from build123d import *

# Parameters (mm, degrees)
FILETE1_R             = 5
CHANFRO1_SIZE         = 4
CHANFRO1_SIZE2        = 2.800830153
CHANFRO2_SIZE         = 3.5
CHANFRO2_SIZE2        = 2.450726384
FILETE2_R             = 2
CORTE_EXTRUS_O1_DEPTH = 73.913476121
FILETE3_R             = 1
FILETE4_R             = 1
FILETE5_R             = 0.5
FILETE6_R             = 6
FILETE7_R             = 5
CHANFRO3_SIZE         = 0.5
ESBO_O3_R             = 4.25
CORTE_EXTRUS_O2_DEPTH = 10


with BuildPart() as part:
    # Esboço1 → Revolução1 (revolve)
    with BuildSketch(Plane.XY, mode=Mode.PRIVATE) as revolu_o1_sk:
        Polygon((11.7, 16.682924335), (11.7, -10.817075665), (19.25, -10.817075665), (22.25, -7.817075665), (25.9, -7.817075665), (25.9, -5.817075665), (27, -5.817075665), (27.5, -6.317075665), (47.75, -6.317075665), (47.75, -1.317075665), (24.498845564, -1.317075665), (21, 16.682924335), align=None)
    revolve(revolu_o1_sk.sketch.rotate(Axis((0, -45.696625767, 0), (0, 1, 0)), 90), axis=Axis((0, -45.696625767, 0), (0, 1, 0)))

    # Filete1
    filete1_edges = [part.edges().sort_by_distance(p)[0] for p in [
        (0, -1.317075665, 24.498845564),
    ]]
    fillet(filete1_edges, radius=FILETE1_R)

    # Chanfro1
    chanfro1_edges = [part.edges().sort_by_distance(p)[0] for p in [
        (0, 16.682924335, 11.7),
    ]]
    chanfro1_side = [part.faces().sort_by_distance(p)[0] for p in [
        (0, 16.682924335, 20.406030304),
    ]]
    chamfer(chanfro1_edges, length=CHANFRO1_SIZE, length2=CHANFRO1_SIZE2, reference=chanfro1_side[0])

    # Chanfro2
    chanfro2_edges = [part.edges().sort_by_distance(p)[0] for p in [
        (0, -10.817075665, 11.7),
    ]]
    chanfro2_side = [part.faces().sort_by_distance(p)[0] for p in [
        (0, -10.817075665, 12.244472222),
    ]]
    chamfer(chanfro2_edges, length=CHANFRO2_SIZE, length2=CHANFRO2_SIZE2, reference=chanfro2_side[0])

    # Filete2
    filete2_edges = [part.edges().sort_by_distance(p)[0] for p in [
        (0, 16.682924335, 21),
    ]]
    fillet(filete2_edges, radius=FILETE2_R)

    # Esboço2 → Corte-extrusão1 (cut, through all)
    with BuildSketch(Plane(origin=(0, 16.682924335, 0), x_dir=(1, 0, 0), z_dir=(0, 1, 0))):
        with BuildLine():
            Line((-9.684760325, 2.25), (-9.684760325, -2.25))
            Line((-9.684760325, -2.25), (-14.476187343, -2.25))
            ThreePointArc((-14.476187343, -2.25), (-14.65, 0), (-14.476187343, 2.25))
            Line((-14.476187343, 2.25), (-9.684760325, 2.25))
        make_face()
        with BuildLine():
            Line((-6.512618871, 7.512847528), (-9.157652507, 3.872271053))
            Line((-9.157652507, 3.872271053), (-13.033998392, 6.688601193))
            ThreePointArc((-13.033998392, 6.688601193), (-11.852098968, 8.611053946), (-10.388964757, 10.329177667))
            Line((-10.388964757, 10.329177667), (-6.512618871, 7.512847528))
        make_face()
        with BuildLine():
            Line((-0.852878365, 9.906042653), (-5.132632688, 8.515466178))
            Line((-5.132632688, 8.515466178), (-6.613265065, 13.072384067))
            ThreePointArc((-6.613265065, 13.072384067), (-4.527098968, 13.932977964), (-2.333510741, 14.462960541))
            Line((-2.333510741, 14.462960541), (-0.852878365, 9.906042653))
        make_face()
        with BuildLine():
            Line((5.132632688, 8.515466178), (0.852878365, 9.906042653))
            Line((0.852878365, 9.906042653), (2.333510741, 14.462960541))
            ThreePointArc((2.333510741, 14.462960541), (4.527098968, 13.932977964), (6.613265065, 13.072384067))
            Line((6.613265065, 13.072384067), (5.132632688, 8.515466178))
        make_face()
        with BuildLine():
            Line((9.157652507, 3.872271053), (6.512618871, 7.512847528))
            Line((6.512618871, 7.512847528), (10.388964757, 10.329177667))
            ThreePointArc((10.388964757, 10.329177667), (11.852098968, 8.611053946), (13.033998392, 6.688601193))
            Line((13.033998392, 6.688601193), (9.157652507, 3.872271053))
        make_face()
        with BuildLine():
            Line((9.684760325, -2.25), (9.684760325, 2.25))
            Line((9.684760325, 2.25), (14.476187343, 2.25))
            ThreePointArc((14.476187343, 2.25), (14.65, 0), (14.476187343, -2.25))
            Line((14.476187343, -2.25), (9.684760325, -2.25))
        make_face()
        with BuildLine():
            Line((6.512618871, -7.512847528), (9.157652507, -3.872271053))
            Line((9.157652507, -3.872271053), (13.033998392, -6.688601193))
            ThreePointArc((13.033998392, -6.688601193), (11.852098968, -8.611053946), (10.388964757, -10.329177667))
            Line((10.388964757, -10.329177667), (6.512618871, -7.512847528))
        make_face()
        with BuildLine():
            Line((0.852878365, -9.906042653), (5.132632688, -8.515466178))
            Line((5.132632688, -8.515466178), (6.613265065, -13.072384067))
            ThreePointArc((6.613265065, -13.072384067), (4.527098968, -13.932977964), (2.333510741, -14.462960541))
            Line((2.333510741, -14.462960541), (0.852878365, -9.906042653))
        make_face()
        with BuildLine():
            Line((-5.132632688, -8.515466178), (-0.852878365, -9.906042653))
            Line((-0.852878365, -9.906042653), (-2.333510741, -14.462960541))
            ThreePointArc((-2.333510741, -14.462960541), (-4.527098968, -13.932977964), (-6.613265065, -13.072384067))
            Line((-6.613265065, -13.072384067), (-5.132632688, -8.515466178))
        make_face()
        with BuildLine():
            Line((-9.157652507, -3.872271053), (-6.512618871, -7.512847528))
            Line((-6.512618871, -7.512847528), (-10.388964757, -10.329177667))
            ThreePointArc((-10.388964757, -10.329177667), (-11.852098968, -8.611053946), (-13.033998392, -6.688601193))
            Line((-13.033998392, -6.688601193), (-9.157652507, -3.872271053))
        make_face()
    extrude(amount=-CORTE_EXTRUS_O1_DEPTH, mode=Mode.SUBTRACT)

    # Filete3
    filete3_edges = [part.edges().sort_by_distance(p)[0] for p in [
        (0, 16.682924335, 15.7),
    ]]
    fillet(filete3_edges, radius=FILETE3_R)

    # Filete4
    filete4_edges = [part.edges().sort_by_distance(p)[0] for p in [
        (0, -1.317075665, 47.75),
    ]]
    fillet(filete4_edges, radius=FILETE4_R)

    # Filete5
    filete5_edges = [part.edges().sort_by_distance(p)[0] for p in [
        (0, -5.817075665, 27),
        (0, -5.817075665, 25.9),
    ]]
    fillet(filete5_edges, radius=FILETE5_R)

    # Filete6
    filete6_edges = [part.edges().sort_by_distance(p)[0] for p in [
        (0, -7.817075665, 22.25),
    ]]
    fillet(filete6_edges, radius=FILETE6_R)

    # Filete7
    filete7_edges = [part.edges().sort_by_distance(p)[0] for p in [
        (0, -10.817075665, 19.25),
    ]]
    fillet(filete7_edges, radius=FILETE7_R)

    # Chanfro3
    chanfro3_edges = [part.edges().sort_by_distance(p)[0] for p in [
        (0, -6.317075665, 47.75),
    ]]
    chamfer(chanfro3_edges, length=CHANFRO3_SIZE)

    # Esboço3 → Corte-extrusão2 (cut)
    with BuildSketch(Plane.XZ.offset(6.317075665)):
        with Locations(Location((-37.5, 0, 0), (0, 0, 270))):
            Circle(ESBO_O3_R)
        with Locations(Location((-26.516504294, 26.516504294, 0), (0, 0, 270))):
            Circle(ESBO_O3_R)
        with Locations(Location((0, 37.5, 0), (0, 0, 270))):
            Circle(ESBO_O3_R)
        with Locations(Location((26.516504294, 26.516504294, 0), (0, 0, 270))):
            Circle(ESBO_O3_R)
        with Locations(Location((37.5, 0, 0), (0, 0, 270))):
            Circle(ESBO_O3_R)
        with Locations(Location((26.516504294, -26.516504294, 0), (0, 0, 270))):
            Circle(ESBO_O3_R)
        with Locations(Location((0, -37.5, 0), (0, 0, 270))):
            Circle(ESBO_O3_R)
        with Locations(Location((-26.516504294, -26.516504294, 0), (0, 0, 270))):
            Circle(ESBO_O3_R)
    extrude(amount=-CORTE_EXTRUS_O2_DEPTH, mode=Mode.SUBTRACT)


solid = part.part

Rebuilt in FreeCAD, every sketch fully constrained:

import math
import FreeCAD as App
import Part
import Sketcher

V = App.Vector
Q = App.Units.Quantity


def edges_at(feature, points):
    """Names of the edges that pass closest to the given points."""
    edges = feature.Shape.Edges
    near = lambda p: min(range(len(edges)), key=lambda i: edges[i].distToShape(Part.Vertex(*p))[0])
    return sorted({f"Edge{near(p) + 1}" for p in points})

doc = App.newDocument("Part")
params = doc.addObject("Spreadsheet::Sheet", "Params")
for row, (alias, value) in enumerate([
    ("sketch1_height", "2 mm"),
    ("sketch1_height2", "5 mm"),
    ("sketch1_width", "1.1 mm"),
    ("sketch1_width2", "9.3 mm"),
    ("sketch1_height3", "27.5 mm"),
    ("revolution_angle", "360 deg"),
    ("fillet_radius", "5 mm"),
    ("chamfer_size", "4 mm"),
    ("chamfer_size2", "2.80083 mm"),
    ("chamfer2_size", "3.5 mm"),
    ("chamfer2_size2", "2.450726 mm"),
    ("fillet2_radius", "2 mm"),
    ("sketch2_radius", "14.65 mm"),
    ("sketch2_height", "4.5 mm"),
    ("sketch2_length", "4.5 mm"),
    ("fillet3_radius", "1 mm"),
    ("fillet4_radius", "1 mm"),
    ("fillet5_radius", "0.5 mm"),
    ("fillet6_radius", "6 mm"),
    ("fillet7_radius", "5 mm"),
    ("chamfer3_size", "0.5 mm"),
    ("sketch3_diameter", "8.5 mm"),
    ("pocket2_length", "10 mm"),
], start=1):
    params.set(f"A{row}", alias)
    params.set(f"B{row}", "=" + value)
    params.setAlias(f"B{row}", alias)

body = doc.addObject("PartDesign::Body", "Body")

sketch1 = body.newObject("Sketcher::SketchObject", "Sketch")
sketch1.AttachmentSupport = (doc.getObject("XY_Plane"), [""])
sketch1.MapMode = "FlatFace"
sketch1.addGeometry(Part.LineSegment(V(11.7, 16.7, 0), V(11.7, -10.8, 0)), False)
sketch1.addGeometry(Part.LineSegment(V(11.7, -10.8, 0), V(19.2, -10.8, 0)), False)
sketch1.addGeometry(Part.LineSegment(V(19.2, -10.8, 0), V(22.2, -7.8, 0)), False)
sketch1.addGeometry(Part.LineSegment(V(22.2, -7.8, 0), V(25.9, -7.8, 0)), False)
sketch1.addGeometry(Part.LineSegment(V(25.9, -7.8, 0), V(25.9, -5.8, 0)), False)
sketch1.addGeometry(Part.LineSegment(V(25.9, -5.8, 0), V(27, -5.8, 0)), False)
sketch1.addGeometry(Part.LineSegment(V(27, -5.8, 0), V(27.5, -6.3, 0)), False)
sketch1.addGeometry(Part.LineSegment(V(27.5, -6.3, 0), V(47.8, -6.3, 0)), False)
sketch1.addGeometry(Part.LineSegment(V(47.8, -6.3, 0), V(47.8, -1.3, 0)), False)
sketch1.addGeometry(Part.LineSegment(V(47.8, -1.3, 0), V(24.5, -1.3, 0)), False)
sketch1.addGeometry(Part.LineSegment(V(24.5, -1.3, 0), V(21, 16.7, 0)), False)
sketch1.addGeometry(Part.LineSegment(V(21, 16.7, 0), V(11.7, 16.7, 0)), False)
sketch1.addConstraint(Sketcher.Constraint("Coincident", 0, 2, 1, 1))
sketch1.addConstraint(Sketcher.Constraint("Coincident", 1, 2, 2, 1))
sketch1.addConstraint(Sketcher.Constraint("Coincident", 2, 2, 3, 1))
sketch1.addConstraint(Sketcher.Constraint("Coincident", 3, 2, 4, 1))
sketch1.addConstraint(Sketcher.Constraint("Coincident", 4, 2, 5, 1))
sketch1.addConstraint(Sketcher.Constraint("Coincident", 5, 2, 6, 1))
sketch1.addConstraint(Sketcher.Constraint("Coincident", 6, 2, 7, 1))
sketch1.addConstraint(Sketcher.Constraint("Coincident", 7, 2, 8, 1))
sketch1.addConstraint(Sketcher.Constraint("Coincident", 8, 2, 9, 1))
sketch1.addConstraint(Sketcher.Constraint("Coincident", 9, 2, 10, 1))
sketch1.addConstraint(Sketcher.Constraint("Coincident", 10, 2, 11, 1))
sketch1.addConstraint(Sketcher.Constraint("Coincident", 11, 2, 0, 1))
sketch1.addConstraint(Sketcher.Constraint("Vertical", 0))
sketch1.addConstraint(Sketcher.Constraint("Horizontal", 1))
sketch1.addConstraint(Sketcher.Constraint("Horizontal", 3))
sketch1.addConstraint(Sketcher.Constraint("Vertical", 4))
sketch1.addConstraint(Sketcher.Constraint("Horizontal", 5))
sketch1.addConstraint(Sketcher.Constraint("Horizontal", 7))
sketch1.addConstraint(Sketcher.Constraint("Vertical", 8))
sketch1.addConstraint(Sketcher.Constraint("Horizontal", 9))
sketch1.addConstraint(Sketcher.Constraint("Horizontal", 11))
sketch1.addConstraint(Sketcher.Constraint("Perpendicular", 2, 6))
sketch1.addConstraint(Sketcher.Constraint("DistanceY", 4, 1, 4, 2, Q("2 mm")))
sketch1.addConstraint(Sketcher.Constraint("DistanceY", 8, 1, 8, 2, Q("5 mm")))
sketch1.addConstraint(Sketcher.Constraint("Angle", 2, Q("45 deg")))
sketch1.addConstraint(Sketcher.Constraint("Angle", 10, Q("101 deg")))
sketch1.addConstraint(Sketcher.Constraint("DistanceX", 5, 1, 5, 2, Q("1.1 mm")))
sketch1.addConstraint(Sketcher.Constraint("DistanceX", 11, 2, 11, 1, Q("9.3 mm")))
sketch1.addConstraint(Sketcher.Constraint("DistanceY", 0, 2, 0, 1, Q("27.5 mm")))
sketch1.addConstraint(Sketcher.Constraint("DistanceX", -1, 1, 5, 2, Q("27 mm")))
sketch1.addConstraint(Sketcher.Constraint("DistanceX", -1, 1, 10, 2, Q("21 mm")))
sketch1.addConstraint(Sketcher.Constraint("DistanceX", 1, 2, 2, 2, Q("3 mm")))
sketch1.addConstraint(Sketcher.Constraint("DistanceY", 9, 2, 10, 2, Q("18 mm")))
sketch1.addConstraint(Sketcher.Constraint("DistanceX", 1, 1, 1, 2, Q("7.55 mm")))
sketch1.addConstraint(Sketcher.Constraint("DistanceX", 7, 1, 7, 2, Q("20.25 mm")))
sketch1.addConstraint(Sketcher.Constraint("DistanceY", 0, 2, -1, 1, Q("10.817076 mm")))
sketch1.setExpression("Constraints[22]", "Params.sketch1_height")
sketch1.setExpression("Constraints[23]", "Params.sketch1_height2")
sketch1.setExpression("Constraints[26]", "Params.sketch1_width")
sketch1.setExpression("Constraints[27]", "Params.sketch1_width2")
sketch1.setExpression("Constraints[28]", "Params.sketch1_height3")
revolution = body.newObject("PartDesign::Revolution", "Revolution")
revolution.Profile = sketch1
revolution.ReferenceAxis = (sketch1, ["V_Axis"])
revolution.setExpression("Angle", "Params.revolution_angle")
doc.recompute()

fillet = body.newObject("PartDesign::Fillet", "Fillet")
fillet.Base = (revolution, edges_at(revolution, [(0, -1.317, 24.499)]))
fillet.setExpression("Radius", "Params.fillet_radius")
doc.recompute()

chamfer = body.newObject("PartDesign::Chamfer", "Chamfer")
chamfer.Base = (fillet, edges_at(fillet, [(0, 16.683, 11.7)]))
chamfer.ChamferType = "Two distances"
chamfer.setExpression("Size", "Params.chamfer_size")
chamfer.setExpression("Size2", "Params.chamfer_size2")
doc.recompute()

chamfer2 = body.newObject("PartDesign::Chamfer", "Chamfer001")
chamfer2.Base = (chamfer, edges_at(chamfer, [(0, -10.817, 11.7)]))
chamfer2.ChamferType = "Two distances"
chamfer2.setExpression("Size", "Params.chamfer2_size")
chamfer2.setExpression("Size2", "Params.chamfer2_size2")
chamfer2.FlipDirection = True
doc.recompute()

fillet2 = body.newObject("PartDesign::Fillet", "Fillet001")
fillet2.Base = (chamfer2, edges_at(chamfer2, [(0, 16.683, 21)]))
fillet2.setExpression("Radius", "Params.fillet2_radius")

sketch2 = body.newObject("Sketcher::SketchObject", "Sketch001")
sketch2.AttachmentSupport = (doc.getObject("XZ_Plane"), [""])
sketch2.MapMode = "FlatFace"
sketch2.AttachmentOffset = App.Placement(V(0, 0, -16.682924), App.Rotation())
sketch2.addGeometry(Part.LineSegment(V(-9.7, 2.2, 0), V(-9.7, -2.2, 0)), False)
sketch2.addGeometry(Part.LineSegment(V(-9.7, -2.2, 0), V(-14.5, -2.2, 0)), False)
sketch2.addGeometry(Part.ArcOfCircle(Part.Circle(V(0, 0, 0), V(0, 0, 1), 14.6), math.radians(171.17), math.radians(188.83)), False)
sketch2.addGeometry(Part.LineSegment(V(-14.5, 2.2, 0), V(-9.7, 2.2, 0)), False)
sketch2.addGeometry(Part.LineSegment(V(-9.2, -3.9, 0), V(-6.5, -7.5, 0)), False)
sketch2.addGeometry(Part.LineSegment(V(-6.5, -7.5, 0), V(-10.4, -10.3, 0)), False)
sketch2.addGeometry(Part.ArcOfCircle(Part.Circle(V(0, 0, 0), V(0, 0, 1), 14.6), math.radians(-152.83), math.radians(-135.17)), False)
sketch2.addGeometry(Part.LineSegment(V(-13, -6.7, 0), V(-9.2, -3.9, 0)), False)
sketch2.addGeometry(Part.LineSegment(V(-5.1, -8.5, 0), V(-0.9, -9.9, 0)), False)
sketch2.addGeometry(Part.LineSegment(V(-0.9, -9.9, 0), V(-2.3, -14.5, 0)), False)
sketch2.addGeometry(Part.ArcOfCircle(Part.Circle(V(0, 0, 0), V(0, 0, 1), 14.6), math.radians(-116.83), math.radians(-99.17)), False)
sketch2.addGeometry(Part.LineSegment(V(-6.6, -13.1, 0), V(-5.1, -8.5, 0)), False)
sketch2.addGeometry(Part.LineSegment(V(0.9, -9.9, 0), V(5.1, -8.5, 0)), False)
sketch2.addGeometry(Part.LineSegment(V(5.1, -8.5, 0), V(6.6, -13.1, 0)), False)
sketch2.addGeometry(Part.ArcOfCircle(Part.Circle(V(0, 0, 0), V(0, 0, 1), 14.6), math.radians(-80.83), math.radians(-63.17)), False)
sketch2.addGeometry(Part.LineSegment(V(2.3, -14.5, 0), V(0.9, -9.9, 0)), False)
sketch2.addGeometry(Part.LineSegment(V(6.5, -7.5, 0), V(9.2, -3.9, 0)), False)
sketch2.addGeometry(Part.LineSegment(V(9.2, -3.9, 0), V(13, -6.7, 0)), False)
sketch2.addGeometry(Part.ArcOfCircle(Part.Circle(V(0, 0, 0), V(0, 0, 1), 14.6), math.radians(-44.83), math.radians(-27.17)), False)
sketch2.addGeometry(Part.LineSegment(V(10.4, -10.3, 0), V(6.5, -7.5, 0)), False)
sketch2.addGeometry(Part.LineSegment(V(9.7, -2.2, 0), V(9.7, 2.2, 0)), False)
sketch2.addGeometry(Part.LineSegment(V(9.7, 2.2, 0), V(14.5, 2.2, 0)), False)
sketch2.addGeometry(Part.ArcOfCircle(Part.Circle(V(0, 0, 0), V(0, 0, 1), 14.6), math.radians(-8.83), math.radians(8.83)), False)
sketch2.addGeometry(Part.LineSegment(V(14.5, -2.2, 0), V(9.7, -2.2, 0)), False)
sketch2.addGeometry(Part.LineSegment(V(9.2, 3.9, 0), V(6.5, 7.5, 0)), False)
sketch2.addGeometry(Part.LineSegment(V(6.5, 7.5, 0), V(10.4, 10.3, 0)), False)
sketch2.addGeometry(Part.ArcOfCircle(Part.Circle(V(0, 0, 0), V(0, 0, 1), 14.6), math.radians(27.17), math.radians(44.83)), False)
sketch2.addGeometry(Part.LineSegment(V(13, 6.7, 0), V(9.2, 3.9, 0)), False)
sketch2.addGeometry(Part.LineSegment(V(5.1, 8.5, 0), V(0.9, 9.9, 0)), False)
sketch2.addGeometry(Part.LineSegment(V(0.9, 9.9, 0), V(2.3, 14.5, 0)), False)
sketch2.addGeometry(Part.ArcOfCircle(Part.Circle(V(0, 0, 0), V(0, 0, 1), 14.6), math.radians(63.17), math.radians(80.83)), False)
sketch2.addGeometry(Part.LineSegment(V(6.6, 13.1, 0), V(5.1, 8.5, 0)), False)
sketch2.addGeometry(Part.LineSegment(V(-0.9, 9.9, 0), V(-5.1, 8.5, 0)), False)
sketch2.addGeometry(Part.LineSegment(V(-5.1, 8.5, 0), V(-6.6, 13.1, 0)), False)
sketch2.addGeometry(Part.ArcOfCircle(Part.Circle(V(0, 0, 0), V(0, 0, 1), 14.6), math.radians(99.17), math.radians(116.83)), False)
sketch2.addGeometry(Part.LineSegment(V(-2.3, 14.5, 0), V(-0.9, 9.9, 0)), False)
sketch2.addGeometry(Part.LineSegment(V(-6.5, 7.5, 0), V(-9.2, 3.9, 0)), False)
sketch2.addGeometry(Part.LineSegment(V(-9.2, 3.9, 0), V(-13, 6.7, 0)), False)
sketch2.addGeometry(Part.ArcOfCircle(Part.Circle(V(0, 0, 0), V(0, 0, 1), 14.6), math.radians(135.17), math.radians(152.83)), False)
sketch2.addGeometry(Part.LineSegment(V(-10.4, 10.3, 0), V(-6.5, 7.5, 0)), False)
sketch2.addConstraint(Sketcher.Constraint("Coincident", 0, 2, 1, 1))
sketch2.addConstraint(Sketcher.Constraint("Coincident", 1, 2, 2, 2))
sketch2.addConstraint(Sketcher.Constraint("Coincident", 2, 1, 3, 1))
sketch2.addConstraint(Sketcher.Constraint("Coincident", 3, 2, 0, 1))
sketch2.addConstraint(Sketcher.Constraint("Coincident", 4, 2, 5, 1))
sketch2.addConstraint(Sketcher.Constraint("Coincident", 5, 2, 6, 2))
sketch2.addConstraint(Sketcher.Constraint("Coincident", 6, 1, 7, 1))
sketch2.addConstraint(Sketcher.Constraint("Coincident", 7, 2, 4, 1))
sketch2.addConstraint(Sketcher.Constraint("Coincident", 8, 2, 9, 1))
sketch2.addConstraint(Sketcher.Constraint("Coincident", 9, 2, 10, 2))
sketch2.addConstraint(Sketcher.Constraint("Coincident", 10, 1, 11, 1))
sketch2.addConstraint(Sketcher.Constraint("Coincident", 11, 2, 8, 1))
sketch2.addConstraint(Sketcher.Constraint("Coincident", 12, 2, 13, 1))
sketch2.addConstraint(Sketcher.Constraint("Coincident", 13, 2, 14, 2))
sketch2.addConstraint(Sketcher.Constraint("Coincident", 14, 1, 15, 1))
sketch2.addConstraint(Sketcher.Constraint("Coincident", 15, 2, 12, 1))
sketch2.addConstraint(Sketcher.Constraint("Coincident", 16, 2, 17, 1))
sketch2.addConstraint(Sketcher.Constraint("Coincident", 17, 2, 18, 2))
sketch2.addConstraint(Sketcher.Constraint("Coincident", 18, 1, 19, 1))
sketch2.addConstraint(Sketcher.Constraint("Coincident", 19, 2, 16, 1))
sketch2.addConstraint(Sketcher.Constraint("Coincident", 20, 2, 21, 1))
sketch2.addConstraint(Sketcher.Constraint("Coincident", 21, 2, 22, 2))
sketch2.addConstraint(Sketcher.Constraint("Coincident", 22, 1, 23, 1))
sketch2.addConstraint(Sketcher.Constraint("Coincident", 23, 2, 20, 1))
sketch2.addConstraint(Sketcher.Constraint("Coincident", 24, 2, 25, 1))
sketch2.addConstraint(Sketcher.Constraint("Coincident", 25, 2, 26, 2))
sketch2.addConstraint(Sketcher.Constraint("Coincident", 26, 1, 27, 1))
sketch2.addConstraint(Sketcher.Constraint("Coincident", 27, 2, 24, 1))
sketch2.addConstraint(Sketcher.Constraint("Coincident", 28, 2, 29, 1))
sketch2.addConstraint(Sketcher.Constraint("Coincident", 29, 2, 30, 2))
sketch2.addConstraint(Sketcher.Constraint("Coincident", 30, 1, 31, 1))
sketch2.addConstraint(Sketcher.Constraint("Coincident", 31, 2, 28, 1))
sketch2.addConstraint(Sketcher.Constraint("Coincident", 32, 2, 33, 1))
sketch2.addConstraint(Sketcher.Constraint("Coincident", 33, 2, 34, 2))
sketch2.addConstraint(Sketcher.Constraint("Coincident", 34, 1, 35, 1))
sketch2.addConstraint(Sketcher.Constraint("Coincident", 35, 2, 32, 1))
sketch2.addConstraint(Sketcher.Constraint("Coincident", 36, 2, 37, 1))
sketch2.addConstraint(Sketcher.Constraint("Coincident", 37, 2, 38, 2))
sketch2.addConstraint(Sketcher.Constraint("Coincident", 38, 1, 39, 1))
sketch2.addConstraint(Sketcher.Constraint("Coincident", 39, 2, 36, 1))
sketch2.addConstraint(Sketcher.Constraint("Vertical", 0))
sketch2.addConstraint(Sketcher.Constraint("Horizontal", 1))
sketch2.addConstraint(Sketcher.Constraint("Horizontal", 3))
sketch2.addConstraint(Sketcher.Constraint("Vertical", 20))
sketch2.addConstraint(Sketcher.Constraint("Horizontal", 21))
sketch2.addConstraint(Sketcher.Constraint("Horizontal", 23))
sketch2.addConstraint(Sketcher.Constraint("Coincident", 2, 3, -1, 1))
sketch2.addConstraint(Sketcher.Constraint("Coincident", 6, 3, -1, 1))
sketch2.addConstraint(Sketcher.Constraint("Coincident", 10, 3, -1, 1))
sketch2.addConstraint(Sketcher.Constraint("Coincident", 14, 3, -1, 1))
sketch2.addConstraint(Sketcher.Constraint("Coincident", 18, 3, -1, 1))
sketch2.addConstraint(Sketcher.Constraint("Coincident", 22, 3, -1, 1))
sketch2.addConstraint(Sketcher.Constraint("Coincident", 26, 3, -1, 1))
sketch2.addConstraint(Sketcher.Constraint("Coincident", 30, 3, -1, 1))
sketch2.addConstraint(Sketcher.Constraint("Coincident", 34, 3, -1, 1))
sketch2.addConstraint(Sketcher.Constraint("Coincident", 38, 3, -1, 1))
sketch2.addConstraint(Sketcher.Constraint("Equal", 2, 6))
sketch2.addConstraint(Sketcher.Constraint("Equal", 6, 10))
sketch2.addConstraint(Sketcher.Constraint("Equal", 10, 14))
sketch2.addConstraint(Sketcher.Constraint("Equal", 14, 18))
sketch2.addConstraint(Sketcher.Constraint("Equal", 18, 22))
sketch2.addConstraint(Sketcher.Constraint("Equal", 22, 26))
sketch2.addConstraint(Sketcher.Constraint("Equal", 26, 30))
sketch2.addConstraint(Sketcher.Constraint("Equal", 30, 34))
sketch2.addConstraint(Sketcher.Constraint("Equal", 34, 38))
sketch2.addConstraint(Sketcher.Constraint("Symmetric", 0, 2, 20, 2, -1, 1))
sketch2.addConstraint(Sketcher.Constraint("Symmetric", 4, 2, 24, 2, -1, 1))
sketch2.addConstraint(Sketcher.Constraint("Symmetric", 7, 2, 27, 2, -1, 1))
sketch2.addConstraint(Sketcher.Constraint("Symmetric", 8, 2, 28, 2, -1, 1))
sketch2.addConstraint(Sketcher.Constraint("Symmetric", 11, 2, 31, 2, -1, 1))
sketch2.addConstraint(Sketcher.Constraint("Symmetric", 12, 2, 32, 2, -1, 1))
sketch2.addConstraint(Sketcher.Constraint("Symmetric", 15, 2, 35, 2, -1, 1))
sketch2.addConstraint(Sketcher.Constraint("Symmetric", 16, 2, 36, 2, -1, 1))
sketch2.addConstraint(Sketcher.Constraint("Symmetric", 19, 2, 39, 2, -1, 1))
sketch2.addConstraint(Sketcher.Constraint("Symmetric", 11, 2, 12, 2, -2))
sketch2.addConstraint(Sketcher.Constraint("Symmetric", 8, 2, 15, 2, -2))
sketch2.addConstraint(Sketcher.Constraint("Symmetric", 7, 2, 16, 2, -2))
sketch2.addConstraint(Sketcher.Constraint("Symmetric", 4, 2, 19, 2, -2))
sketch2.addConstraint(Sketcher.Constraint("Perpendicular", 4, 5))
sketch2.addConstraint(Sketcher.Constraint("Parallel", 5, 7))
sketch2.addConstraint(Sketcher.Constraint("Perpendicular", 8, 9))
sketch2.addConstraint(Sketcher.Constraint("Parallel", 9, 11))
sketch2.addConstraint(Sketcher.Constraint("Perpendicular", 12, 13))
sketch2.addConstraint(Sketcher.Constraint("Parallel", 13, 15))
sketch2.addConstraint(Sketcher.Constraint("Perpendicular", 16, 17))
sketch2.addConstraint(Sketcher.Constraint("Parallel", 17, 19))
sketch2.addConstraint(Sketcher.Constraint("Perpendicular", 24, 25))
sketch2.addConstraint(Sketcher.Constraint("Parallel", 25, 27))
sketch2.addConstraint(Sketcher.Constraint("Perpendicular", 28, 29))
sketch2.addConstraint(Sketcher.Constraint("Parallel", 29, 31))
sketch2.addConstraint(Sketcher.Constraint("Perpendicular", 32, 33))
sketch2.addConstraint(Sketcher.Constraint("Parallel", 33, 35))
sketch2.addConstraint(Sketcher.Constraint("Perpendicular", 36, 37))
sketch2.addConstraint(Sketcher.Constraint("Parallel", 37, 39))
sketch2.addConstraint(Sketcher.Constraint("Horizontal", 3, 2, 20, 2))
sketch2.addConstraint(Sketcher.Constraint("Horizontal", 1, 2, 22, 1))
sketch2.addConstraint(Sketcher.Constraint("Equal", 5, 7))
sketch2.addConstraint(Sketcher.Constraint("Equal", 4, 8))
sketch2.addConstraint(Sketcher.Constraint("Equal", 7, 9))
sketch2.addConstraint(Sketcher.Constraint("Equal", 9, 11))
sketch2.addConstraint(Sketcher.Constraint("Angle", 4, Q("-54 deg")))
sketch2.addConstraint(Sketcher.Constraint("Angle", 8, Q("-18 deg")))
sketch2.addConstraint(Sketcher.Constraint("Radius", 2, Q("14.65 mm")))
sketch2.addConstraint(Sketcher.Constraint("DistanceY", 0, 2, 0, 1, Q("4.5 mm")))
sketch2.addConstraint(Sketcher.Constraint("Distance", 4, Q("4.5 mm")))
sketch2.addConstraint(Sketcher.Constraint("DistanceX", 1, 2, 1, 1, Q("4.791427 mm")))
sketch2.addConstraint(Sketcher.Constraint("DistanceX", 4, 2, -1, 1, Q("6.512619 mm")))
sketch2.setExpression("Constraints[102]", "Params.sketch2_radius")
sketch2.setExpression("Constraints[103]", "Params.sketch2_height")
sketch2.setExpression("Constraints[104]", "Params.sketch2_length")
pocket1 = body.newObject("PartDesign::Pocket", "Pocket")
pocket1.Profile = sketch2
pocket1.Type = "ThroughAll"
pocket1.Reversed = True
doc.recompute()

fillet3 = body.newObject("PartDesign::Fillet", "Fillet002")
fillet3.Base = (pocket1, edges_at(pocket1, [(0, 16.683, 15.7)]))
fillet3.setExpression("Radius", "Params.fillet3_radius")
doc.recompute()

fillet4 = body.newObject("PartDesign::Fillet", "Fillet003")
fillet4.Base = (fillet3, edges_at(fillet3, [(0, -1.317, 47.75)]))
fillet4.setExpression("Radius", "Params.fillet4_radius")
doc.recompute()

fillet5 = body.newObject("PartDesign::Fillet", "Fillet004")
fillet5.Base = (fillet4, edges_at(fillet4, [(0, -5.817, 27), (0, -5.817, 25.9)]))
fillet5.setExpression("Radius", "Params.fillet5_radius")
doc.recompute()

fillet6 = body.newObject("PartDesign::Fillet", "Fillet005")
fillet6.Base = (fillet5, edges_at(fillet5, [(0, -7.817, 22.25)]))
fillet6.setExpression("Radius", "Params.fillet6_radius")
doc.recompute()

fillet7 = body.newObject("PartDesign::Fillet", "Fillet006")
fillet7.Base = (fillet6, edges_at(fillet6, [(0, -10.817, 19.25)]))
fillet7.setExpression("Radius", "Params.fillet7_radius")
doc.recompute()

chamfer3 = body.newObject("PartDesign::Chamfer", "Chamfer002")
chamfer3.Base = (fillet7, edges_at(fillet7, [(0, -6.317, 47.75)]))
chamfer3.setExpression("Size", "Params.chamfer3_size")

sketch3 = body.newObject("Sketcher::SketchObject", "Sketch002")
sketch3.AttachmentSupport = (doc.getObject("XZ_Plane"), [""])
sketch3.MapMode = "FlatFace"
sketch3.AttachmentOffset = App.Placement(V(0, 0, 6.317076), App.Rotation())
sketch3.addGeometry(Part.Circle(V(-37.5, 0, 0), V(0, 0, 1), 4.2), False)
sketch3.addGeometry(Part.Circle(V(-26.5, 26.5, 0), V(0, 0, 1), 4.2), False)
sketch3.addGeometry(Part.Circle(V(0, 37.5, 0), V(0, 0, 1), 4.2), False)
sketch3.addGeometry(Part.Circle(V(26.5, 26.5, 0), V(0, 0, 1), 4.2), False)
sketch3.addGeometry(Part.Circle(V(37.5, 0, 0), V(0, 0, 1), 4.2), False)
sketch3.addGeometry(Part.Circle(V(26.5, -26.5, 0), V(0, 0, 1), 4.2), False)
sketch3.addGeometry(Part.Circle(V(0, -37.5, 0), V(0, 0, 1), 4.2), False)
sketch3.addGeometry(Part.Circle(V(-26.5, -26.5, 0), V(0, 0, 1), 4.2), False)
sketch3.addConstraint(Sketcher.Constraint("Equal", 0, 1))
sketch3.addConstraint(Sketcher.Constraint("Equal", 1, 2))
sketch3.addConstraint(Sketcher.Constraint("Equal", 2, 3))
sketch3.addConstraint(Sketcher.Constraint("Equal", 3, 4))
sketch3.addConstraint(Sketcher.Constraint("Equal", 4, 5))
sketch3.addConstraint(Sketcher.Constraint("Equal", 5, 6))
sketch3.addConstraint(Sketcher.Constraint("Equal", 6, 7))
sketch3.addConstraint(Sketcher.Constraint("Symmetric", 0, 3, 4, 3, -1, 1))
sketch3.addConstraint(Sketcher.Constraint("Symmetric", 1, 3, 5, 3, -1, 1))
sketch3.addConstraint(Sketcher.Constraint("Symmetric", 2, 3, 6, 3, -1, 1))
sketch3.addConstraint(Sketcher.Constraint("Symmetric", 3, 3, 7, 3, -1, 1))
sketch3.addConstraint(Sketcher.Constraint("Symmetric", 1, 3, 3, 3, -2))
sketch3.addConstraint(Sketcher.Constraint("PointOnObject", 0, 3, -1))
sketch3.addConstraint(Sketcher.Constraint("PointOnObject", 2, 3, -2))
sketch3.addConstraint(Sketcher.Constraint("Diameter", 0, Q("8.5 mm")))
sketch3.addConstraint(Sketcher.Constraint("DistanceX", 0, 3, 4, 3, Q("75 mm")))
sketch3.addConstraint(Sketcher.Constraint("DistanceY", -1, 1, 2, 3, Q("37.5 mm")))
sketch3.addConstraint(Sketcher.Constraint("DistanceX", 1, 3, 3, 3, Q("53.033009 mm")))
sketch3.addConstraint(Sketcher.Constraint("DistanceY", 5, 3, 3, 3, Q("53.033009 mm")))
sketch3.setExpression("Constraints[14]", "Params.sketch3_diameter")
pocket2 = body.newObject("PartDesign::Pocket", "Pocket001")
pocket2.Profile = sketch3
pocket2.setExpression("Length", "Params.pocket2_length")

doc.recompute()
